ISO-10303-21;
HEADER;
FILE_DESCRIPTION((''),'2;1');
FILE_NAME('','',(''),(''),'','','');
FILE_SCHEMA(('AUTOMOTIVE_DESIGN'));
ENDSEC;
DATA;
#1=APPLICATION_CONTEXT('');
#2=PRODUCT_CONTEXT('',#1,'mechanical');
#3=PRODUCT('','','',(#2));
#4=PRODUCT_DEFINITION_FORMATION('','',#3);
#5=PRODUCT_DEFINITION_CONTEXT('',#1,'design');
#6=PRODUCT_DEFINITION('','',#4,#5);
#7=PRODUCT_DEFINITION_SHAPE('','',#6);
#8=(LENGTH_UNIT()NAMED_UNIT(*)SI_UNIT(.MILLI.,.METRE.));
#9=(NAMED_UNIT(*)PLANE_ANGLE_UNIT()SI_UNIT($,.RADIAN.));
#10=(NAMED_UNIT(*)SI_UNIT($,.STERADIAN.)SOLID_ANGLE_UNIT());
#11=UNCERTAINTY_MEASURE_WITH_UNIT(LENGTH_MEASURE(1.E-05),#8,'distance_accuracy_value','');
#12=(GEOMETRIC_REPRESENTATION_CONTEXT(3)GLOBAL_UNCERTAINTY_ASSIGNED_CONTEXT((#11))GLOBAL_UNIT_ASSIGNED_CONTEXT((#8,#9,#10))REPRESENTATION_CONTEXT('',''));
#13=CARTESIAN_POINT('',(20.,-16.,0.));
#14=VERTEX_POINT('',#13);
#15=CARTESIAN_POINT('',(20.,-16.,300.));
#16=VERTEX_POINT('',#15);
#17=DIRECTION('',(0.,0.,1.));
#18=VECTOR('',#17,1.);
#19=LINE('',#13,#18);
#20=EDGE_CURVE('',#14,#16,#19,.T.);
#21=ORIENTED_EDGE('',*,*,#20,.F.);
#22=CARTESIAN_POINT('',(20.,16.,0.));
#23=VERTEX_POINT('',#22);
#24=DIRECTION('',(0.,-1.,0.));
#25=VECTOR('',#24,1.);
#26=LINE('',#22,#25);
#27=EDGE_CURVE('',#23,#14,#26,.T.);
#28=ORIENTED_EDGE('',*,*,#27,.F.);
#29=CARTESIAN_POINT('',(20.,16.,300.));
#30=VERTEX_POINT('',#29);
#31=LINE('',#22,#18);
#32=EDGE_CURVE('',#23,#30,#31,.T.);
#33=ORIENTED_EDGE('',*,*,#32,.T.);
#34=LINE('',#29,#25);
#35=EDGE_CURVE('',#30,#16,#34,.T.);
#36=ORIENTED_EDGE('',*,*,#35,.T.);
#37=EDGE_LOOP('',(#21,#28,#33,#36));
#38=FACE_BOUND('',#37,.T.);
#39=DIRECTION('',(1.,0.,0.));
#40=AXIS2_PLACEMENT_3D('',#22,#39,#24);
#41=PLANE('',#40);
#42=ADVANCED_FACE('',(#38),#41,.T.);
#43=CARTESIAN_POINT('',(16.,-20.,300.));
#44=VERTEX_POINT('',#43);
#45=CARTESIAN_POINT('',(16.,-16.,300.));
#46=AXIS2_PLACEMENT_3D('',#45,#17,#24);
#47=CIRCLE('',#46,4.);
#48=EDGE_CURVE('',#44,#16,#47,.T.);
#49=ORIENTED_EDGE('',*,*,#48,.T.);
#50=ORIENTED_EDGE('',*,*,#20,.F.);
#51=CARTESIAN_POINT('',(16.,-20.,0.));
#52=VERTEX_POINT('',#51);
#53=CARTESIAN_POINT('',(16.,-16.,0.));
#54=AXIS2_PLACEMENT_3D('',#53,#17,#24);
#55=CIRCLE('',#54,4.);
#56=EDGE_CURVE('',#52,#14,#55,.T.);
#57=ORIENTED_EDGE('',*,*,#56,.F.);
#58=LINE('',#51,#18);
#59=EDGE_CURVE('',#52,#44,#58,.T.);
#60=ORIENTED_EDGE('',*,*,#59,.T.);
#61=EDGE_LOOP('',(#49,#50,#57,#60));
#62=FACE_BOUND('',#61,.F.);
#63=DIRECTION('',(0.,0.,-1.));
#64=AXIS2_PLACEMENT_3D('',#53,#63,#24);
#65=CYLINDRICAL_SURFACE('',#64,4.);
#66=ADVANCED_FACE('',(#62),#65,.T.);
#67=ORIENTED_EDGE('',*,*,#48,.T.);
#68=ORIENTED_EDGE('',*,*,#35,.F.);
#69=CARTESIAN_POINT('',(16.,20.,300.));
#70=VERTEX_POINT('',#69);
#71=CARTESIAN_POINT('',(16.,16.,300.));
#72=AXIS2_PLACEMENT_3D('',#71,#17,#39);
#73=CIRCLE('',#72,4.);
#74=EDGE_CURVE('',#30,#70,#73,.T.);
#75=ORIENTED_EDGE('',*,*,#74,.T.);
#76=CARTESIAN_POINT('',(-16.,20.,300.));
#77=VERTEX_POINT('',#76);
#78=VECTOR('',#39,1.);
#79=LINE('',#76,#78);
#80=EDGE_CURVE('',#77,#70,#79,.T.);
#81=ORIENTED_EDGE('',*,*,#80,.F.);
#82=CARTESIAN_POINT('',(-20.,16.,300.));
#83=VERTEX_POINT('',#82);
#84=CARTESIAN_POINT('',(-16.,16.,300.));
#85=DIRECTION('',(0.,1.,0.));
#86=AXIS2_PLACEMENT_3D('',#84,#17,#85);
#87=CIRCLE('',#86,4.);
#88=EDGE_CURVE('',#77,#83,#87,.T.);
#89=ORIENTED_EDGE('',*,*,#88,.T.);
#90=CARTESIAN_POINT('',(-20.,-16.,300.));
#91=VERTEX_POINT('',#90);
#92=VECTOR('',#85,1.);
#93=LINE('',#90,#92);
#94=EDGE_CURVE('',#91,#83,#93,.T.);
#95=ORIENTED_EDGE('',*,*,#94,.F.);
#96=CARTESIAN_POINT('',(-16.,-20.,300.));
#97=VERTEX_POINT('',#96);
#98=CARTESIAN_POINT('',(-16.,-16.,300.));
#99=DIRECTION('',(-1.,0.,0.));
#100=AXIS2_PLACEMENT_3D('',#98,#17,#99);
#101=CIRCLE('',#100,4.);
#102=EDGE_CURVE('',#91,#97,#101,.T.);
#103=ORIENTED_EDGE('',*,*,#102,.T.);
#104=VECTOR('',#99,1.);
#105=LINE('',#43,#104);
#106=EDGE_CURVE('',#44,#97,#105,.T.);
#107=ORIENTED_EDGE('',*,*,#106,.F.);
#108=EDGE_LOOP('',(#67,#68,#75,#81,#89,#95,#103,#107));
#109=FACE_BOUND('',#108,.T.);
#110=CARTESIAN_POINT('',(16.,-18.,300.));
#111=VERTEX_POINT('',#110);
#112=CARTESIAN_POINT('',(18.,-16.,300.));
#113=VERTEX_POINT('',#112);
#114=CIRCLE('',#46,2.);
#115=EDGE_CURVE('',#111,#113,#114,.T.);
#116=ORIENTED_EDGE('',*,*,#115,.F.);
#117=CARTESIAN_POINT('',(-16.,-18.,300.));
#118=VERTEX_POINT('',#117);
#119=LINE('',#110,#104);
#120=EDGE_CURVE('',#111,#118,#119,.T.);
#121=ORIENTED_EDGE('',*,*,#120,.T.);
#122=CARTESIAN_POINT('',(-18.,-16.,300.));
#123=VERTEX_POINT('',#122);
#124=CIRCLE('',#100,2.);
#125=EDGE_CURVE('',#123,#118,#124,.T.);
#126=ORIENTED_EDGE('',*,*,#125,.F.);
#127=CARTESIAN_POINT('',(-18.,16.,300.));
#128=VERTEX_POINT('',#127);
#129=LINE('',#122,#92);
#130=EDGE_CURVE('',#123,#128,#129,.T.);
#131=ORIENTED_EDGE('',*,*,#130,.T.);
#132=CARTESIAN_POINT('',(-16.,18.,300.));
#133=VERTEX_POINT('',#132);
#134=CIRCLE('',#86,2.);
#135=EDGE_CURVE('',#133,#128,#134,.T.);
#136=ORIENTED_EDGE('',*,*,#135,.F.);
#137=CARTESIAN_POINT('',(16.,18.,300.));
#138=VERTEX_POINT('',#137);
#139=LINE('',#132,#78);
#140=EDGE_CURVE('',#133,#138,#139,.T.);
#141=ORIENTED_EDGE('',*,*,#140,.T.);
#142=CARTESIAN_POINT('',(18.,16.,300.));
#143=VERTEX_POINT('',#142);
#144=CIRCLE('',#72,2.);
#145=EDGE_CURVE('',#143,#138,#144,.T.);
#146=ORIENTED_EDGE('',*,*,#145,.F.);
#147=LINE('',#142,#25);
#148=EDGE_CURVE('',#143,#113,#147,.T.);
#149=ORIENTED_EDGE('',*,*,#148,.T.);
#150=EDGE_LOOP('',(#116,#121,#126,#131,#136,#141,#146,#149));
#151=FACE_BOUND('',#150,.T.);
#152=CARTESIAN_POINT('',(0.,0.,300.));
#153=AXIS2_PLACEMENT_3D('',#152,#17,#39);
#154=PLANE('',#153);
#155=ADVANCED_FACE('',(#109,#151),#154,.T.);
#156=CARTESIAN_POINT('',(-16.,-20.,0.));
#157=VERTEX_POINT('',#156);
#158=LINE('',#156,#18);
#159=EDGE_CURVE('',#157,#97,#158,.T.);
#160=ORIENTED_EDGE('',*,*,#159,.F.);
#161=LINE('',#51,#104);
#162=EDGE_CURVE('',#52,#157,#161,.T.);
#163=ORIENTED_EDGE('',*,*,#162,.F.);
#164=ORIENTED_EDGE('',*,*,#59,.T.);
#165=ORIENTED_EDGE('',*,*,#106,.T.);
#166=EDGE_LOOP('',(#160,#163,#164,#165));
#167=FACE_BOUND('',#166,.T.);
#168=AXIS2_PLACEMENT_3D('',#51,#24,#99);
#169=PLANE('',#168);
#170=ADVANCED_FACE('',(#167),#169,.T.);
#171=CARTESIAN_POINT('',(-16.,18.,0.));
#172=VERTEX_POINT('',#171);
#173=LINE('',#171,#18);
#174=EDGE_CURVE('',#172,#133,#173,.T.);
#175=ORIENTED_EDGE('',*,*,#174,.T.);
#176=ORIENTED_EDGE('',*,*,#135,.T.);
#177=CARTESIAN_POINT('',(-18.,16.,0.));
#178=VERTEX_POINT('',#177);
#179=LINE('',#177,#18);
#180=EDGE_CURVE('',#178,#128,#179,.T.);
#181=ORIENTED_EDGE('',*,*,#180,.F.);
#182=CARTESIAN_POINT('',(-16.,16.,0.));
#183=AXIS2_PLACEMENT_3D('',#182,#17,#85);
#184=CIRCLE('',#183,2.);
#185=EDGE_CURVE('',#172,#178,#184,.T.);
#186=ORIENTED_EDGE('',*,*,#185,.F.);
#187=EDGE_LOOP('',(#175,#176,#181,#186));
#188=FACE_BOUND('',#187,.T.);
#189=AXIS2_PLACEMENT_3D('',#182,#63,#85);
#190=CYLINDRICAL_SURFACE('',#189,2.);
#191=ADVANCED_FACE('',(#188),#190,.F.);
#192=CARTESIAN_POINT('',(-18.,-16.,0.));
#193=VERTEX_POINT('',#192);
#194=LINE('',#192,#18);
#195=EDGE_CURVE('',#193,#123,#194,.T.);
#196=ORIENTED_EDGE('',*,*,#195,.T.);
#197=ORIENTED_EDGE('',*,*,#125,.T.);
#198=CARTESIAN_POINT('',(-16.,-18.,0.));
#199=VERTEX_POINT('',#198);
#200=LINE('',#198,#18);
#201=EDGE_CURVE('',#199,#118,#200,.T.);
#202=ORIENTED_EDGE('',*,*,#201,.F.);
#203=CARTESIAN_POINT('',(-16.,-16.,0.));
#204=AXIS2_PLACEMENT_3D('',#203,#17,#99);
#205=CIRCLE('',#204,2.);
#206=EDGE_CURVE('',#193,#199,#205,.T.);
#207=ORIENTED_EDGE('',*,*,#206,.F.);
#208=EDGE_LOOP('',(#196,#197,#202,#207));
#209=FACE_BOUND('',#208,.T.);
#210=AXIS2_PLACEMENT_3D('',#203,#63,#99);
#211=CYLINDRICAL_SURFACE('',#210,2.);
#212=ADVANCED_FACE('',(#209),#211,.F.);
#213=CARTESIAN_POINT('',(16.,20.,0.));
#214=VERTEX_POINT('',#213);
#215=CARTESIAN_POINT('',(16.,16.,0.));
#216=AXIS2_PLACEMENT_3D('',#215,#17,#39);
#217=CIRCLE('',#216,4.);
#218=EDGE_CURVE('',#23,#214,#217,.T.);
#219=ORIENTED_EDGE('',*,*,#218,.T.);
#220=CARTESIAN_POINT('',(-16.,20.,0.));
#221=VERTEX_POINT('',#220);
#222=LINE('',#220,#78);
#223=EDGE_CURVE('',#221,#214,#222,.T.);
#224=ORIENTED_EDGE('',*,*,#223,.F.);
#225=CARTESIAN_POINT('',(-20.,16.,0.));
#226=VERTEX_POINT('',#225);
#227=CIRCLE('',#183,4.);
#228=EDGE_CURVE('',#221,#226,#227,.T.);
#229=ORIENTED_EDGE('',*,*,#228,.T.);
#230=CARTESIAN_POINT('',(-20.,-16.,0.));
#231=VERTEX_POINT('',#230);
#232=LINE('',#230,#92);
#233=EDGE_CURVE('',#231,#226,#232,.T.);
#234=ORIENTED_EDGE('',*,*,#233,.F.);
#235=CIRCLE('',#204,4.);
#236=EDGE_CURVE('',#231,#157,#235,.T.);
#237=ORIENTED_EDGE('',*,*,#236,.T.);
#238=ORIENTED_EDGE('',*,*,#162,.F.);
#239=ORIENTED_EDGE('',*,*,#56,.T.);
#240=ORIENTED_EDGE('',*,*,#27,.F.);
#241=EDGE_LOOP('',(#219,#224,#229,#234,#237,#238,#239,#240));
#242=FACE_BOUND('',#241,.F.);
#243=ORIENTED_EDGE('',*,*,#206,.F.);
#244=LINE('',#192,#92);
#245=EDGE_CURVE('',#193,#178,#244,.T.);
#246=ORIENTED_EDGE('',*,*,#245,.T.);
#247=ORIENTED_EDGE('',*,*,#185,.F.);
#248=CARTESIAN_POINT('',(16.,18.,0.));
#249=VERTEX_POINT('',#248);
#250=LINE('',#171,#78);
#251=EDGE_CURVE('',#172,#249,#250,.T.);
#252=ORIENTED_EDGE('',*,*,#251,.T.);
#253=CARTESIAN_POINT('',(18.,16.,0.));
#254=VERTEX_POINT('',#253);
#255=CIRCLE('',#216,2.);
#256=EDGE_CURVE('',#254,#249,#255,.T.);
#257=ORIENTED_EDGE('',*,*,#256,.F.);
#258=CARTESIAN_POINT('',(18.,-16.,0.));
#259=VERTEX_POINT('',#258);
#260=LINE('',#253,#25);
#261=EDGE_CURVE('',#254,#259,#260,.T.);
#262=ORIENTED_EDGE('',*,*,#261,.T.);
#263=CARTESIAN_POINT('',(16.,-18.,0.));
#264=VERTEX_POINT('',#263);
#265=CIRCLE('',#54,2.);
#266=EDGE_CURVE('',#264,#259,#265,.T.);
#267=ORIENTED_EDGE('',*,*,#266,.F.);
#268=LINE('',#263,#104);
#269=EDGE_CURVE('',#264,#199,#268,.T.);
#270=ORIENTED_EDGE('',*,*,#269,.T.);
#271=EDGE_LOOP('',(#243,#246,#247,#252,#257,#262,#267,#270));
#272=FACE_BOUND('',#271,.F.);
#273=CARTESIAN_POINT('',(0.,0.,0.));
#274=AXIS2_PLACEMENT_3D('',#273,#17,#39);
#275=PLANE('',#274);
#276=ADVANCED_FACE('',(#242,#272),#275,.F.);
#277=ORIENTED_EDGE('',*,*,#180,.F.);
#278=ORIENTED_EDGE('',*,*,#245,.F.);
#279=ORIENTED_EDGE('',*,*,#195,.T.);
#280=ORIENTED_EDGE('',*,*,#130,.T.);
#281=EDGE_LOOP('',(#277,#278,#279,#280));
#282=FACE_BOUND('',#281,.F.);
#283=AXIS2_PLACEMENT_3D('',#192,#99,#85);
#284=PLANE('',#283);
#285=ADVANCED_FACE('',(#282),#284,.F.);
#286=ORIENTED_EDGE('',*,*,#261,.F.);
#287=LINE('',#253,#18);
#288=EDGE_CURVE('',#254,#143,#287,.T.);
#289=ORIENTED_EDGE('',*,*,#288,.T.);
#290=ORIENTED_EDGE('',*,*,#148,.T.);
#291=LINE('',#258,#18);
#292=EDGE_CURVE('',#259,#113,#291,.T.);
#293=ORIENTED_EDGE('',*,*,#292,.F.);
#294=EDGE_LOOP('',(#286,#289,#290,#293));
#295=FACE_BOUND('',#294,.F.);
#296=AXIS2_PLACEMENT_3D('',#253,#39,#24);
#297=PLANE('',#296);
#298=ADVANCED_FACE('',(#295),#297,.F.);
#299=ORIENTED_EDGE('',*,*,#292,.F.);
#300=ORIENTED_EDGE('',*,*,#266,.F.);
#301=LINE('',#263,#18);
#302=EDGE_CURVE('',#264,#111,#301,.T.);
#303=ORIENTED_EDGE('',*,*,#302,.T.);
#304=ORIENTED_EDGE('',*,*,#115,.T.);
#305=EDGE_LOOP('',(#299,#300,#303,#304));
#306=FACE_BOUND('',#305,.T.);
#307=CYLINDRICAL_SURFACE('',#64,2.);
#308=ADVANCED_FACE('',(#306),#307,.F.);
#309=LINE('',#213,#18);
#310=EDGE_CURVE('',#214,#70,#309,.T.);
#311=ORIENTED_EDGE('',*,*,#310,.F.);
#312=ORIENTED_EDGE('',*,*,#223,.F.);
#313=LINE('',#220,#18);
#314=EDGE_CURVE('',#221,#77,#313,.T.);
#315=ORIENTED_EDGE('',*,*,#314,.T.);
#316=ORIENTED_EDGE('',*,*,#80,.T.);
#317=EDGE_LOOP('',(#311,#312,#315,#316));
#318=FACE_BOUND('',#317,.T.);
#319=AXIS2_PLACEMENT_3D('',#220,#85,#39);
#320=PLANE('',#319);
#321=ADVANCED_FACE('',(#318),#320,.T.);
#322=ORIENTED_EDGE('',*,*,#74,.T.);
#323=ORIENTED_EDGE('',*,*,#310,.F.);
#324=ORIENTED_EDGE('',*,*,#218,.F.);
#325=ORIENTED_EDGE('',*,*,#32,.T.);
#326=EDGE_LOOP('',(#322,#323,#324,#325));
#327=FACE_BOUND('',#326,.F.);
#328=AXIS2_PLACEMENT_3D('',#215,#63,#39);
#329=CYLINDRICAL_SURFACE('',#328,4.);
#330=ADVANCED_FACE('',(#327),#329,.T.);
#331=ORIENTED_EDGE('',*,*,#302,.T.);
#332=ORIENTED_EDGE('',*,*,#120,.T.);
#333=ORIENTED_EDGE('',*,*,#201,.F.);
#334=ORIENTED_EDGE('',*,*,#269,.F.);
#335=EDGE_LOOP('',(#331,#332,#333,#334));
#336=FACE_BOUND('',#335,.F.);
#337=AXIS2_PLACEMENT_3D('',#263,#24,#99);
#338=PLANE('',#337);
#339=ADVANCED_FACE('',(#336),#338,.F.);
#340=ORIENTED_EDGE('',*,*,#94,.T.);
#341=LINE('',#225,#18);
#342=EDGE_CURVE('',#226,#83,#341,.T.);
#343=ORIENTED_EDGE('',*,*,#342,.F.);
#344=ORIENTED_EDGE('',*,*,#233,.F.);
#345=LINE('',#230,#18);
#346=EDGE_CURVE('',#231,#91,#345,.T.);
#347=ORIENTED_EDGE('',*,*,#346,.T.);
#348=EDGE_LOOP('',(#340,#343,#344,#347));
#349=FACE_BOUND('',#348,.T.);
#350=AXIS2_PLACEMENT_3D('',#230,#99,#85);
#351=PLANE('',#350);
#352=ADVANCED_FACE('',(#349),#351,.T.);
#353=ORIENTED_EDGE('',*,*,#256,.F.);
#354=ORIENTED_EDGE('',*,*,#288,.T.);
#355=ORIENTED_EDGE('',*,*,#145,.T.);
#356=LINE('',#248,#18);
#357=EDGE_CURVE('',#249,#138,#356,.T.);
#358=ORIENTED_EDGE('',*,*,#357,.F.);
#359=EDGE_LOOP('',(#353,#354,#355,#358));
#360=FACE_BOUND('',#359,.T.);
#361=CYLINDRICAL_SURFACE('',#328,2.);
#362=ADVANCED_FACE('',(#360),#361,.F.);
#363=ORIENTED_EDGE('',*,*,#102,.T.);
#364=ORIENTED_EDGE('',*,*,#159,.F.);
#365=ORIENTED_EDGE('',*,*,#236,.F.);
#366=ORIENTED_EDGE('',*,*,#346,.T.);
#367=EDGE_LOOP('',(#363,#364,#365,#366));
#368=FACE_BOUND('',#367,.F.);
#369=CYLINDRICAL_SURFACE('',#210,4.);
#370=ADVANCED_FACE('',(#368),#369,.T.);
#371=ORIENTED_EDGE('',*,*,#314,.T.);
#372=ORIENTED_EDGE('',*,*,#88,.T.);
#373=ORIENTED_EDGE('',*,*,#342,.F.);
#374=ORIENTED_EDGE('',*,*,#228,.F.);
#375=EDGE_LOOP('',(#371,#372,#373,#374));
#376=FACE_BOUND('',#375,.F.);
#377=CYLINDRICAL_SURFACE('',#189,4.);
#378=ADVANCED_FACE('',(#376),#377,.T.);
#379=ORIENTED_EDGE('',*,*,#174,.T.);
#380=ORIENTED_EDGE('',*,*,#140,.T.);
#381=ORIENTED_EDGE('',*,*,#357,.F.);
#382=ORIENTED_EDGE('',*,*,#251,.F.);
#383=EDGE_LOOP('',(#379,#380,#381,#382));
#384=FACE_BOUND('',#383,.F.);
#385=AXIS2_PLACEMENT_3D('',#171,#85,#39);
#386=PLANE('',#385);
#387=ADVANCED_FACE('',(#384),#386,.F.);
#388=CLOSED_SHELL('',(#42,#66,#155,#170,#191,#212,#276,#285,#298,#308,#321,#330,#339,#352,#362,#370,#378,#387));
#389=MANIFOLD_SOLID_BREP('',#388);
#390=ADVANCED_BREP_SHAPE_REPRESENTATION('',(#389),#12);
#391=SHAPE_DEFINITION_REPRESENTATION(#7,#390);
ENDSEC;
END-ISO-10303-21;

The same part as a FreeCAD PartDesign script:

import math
import FreeCAD as App
import Part
import Sketcher
Q = App.Units.Quantity

doc = App.newDocument("Part")
body = doc.addObject("PartDesign::Body", "Body")

# Sketch on XY plane
sketch1 = body.newObject("Sketcher::SketchObject", "Sketch")
sketch1.AttachmentSupport = (doc.getObject("XY_Plane"), [""])
sketch1.MapMode = "FlatFace"
sketch1.addGeometry(Part.LineSegment(App.Vector(-20, 16, 0), App.Vector(-20, -16, 0)), False)
sketch1.addGeometry(Part.ArcOfCircle(Part.Circle(App.Vector(-16, -16, 0), App.Vector(0, 0, 1), 4), math.radians(180), math.radians(270)), False)
sketch1.addGeometry(Part.LineSegment(App.Vector(-16, -20, 0), App.Vector(16, -20, 0)), False)
sketch1.addGeometry(Part.ArcOfCircle(Part.Circle(App.Vector(16, -16, 0), App.Vector(0, 0, 1), 4), math.radians(-90), math.radians(0)), False)
sketch1.addGeometry(Part.LineSegment(App.Vector(20, -16, 0), App.Vector(20, 16, 0)), False)
sketch1.addGeometry(Part.ArcOfCircle(Part.Circle(App.Vector(16, 16, 0), App.Vector(0, 0, 1), 4), math.radians(0), math.radians(90)), False)
sketch1.addGeometry(Part.LineSegment(App.Vector(16, 20, 0), App.Vector(-16, 20, 0)), False)
sketch1.addGeometry(Part.ArcOfCircle(Part.Circle(App.Vector(-16, 16, 0), App.Vector(0, 0, 1), 4), math.radians(90), math.radians(180)), False)
sketch1.addGeometry(Part.ArcOfCircle(Part.Circle(App.Vector(-16, 16, 0), App.Vector(0, 0, 1), 2), math.radians(90), math.radians(180)), False)
sketch1.addGeometry(Part.LineSegment(App.Vector(-16, 18, 0), App.Vector(16, 18, 0)), False)
sketch1.addGeometry(Part.ArcOfCircle(Part.Circle(App.Vector(16, 16, 0), App.Vector(0, 0, 1), 2), math.radians(0), math.radians(90)), False)
sketch1.addGeometry(Part.LineSegment(App.Vector(18, 16, 0), App.Vector(18, -16, 0)), False)
sketch1.addGeometry(Part.ArcOfCircle(Part.Circle(App.Vector(16, -16, 0), App.Vector(0, 0, 1), 2), math.radians(-90), math.radians(0)), False)
sketch1.addGeometry(Part.LineSegment(App.Vector(16, -18, 0), App.Vector(-16, -18, 0)), False)
sketch1.addGeometry(Part.ArcOfCircle(Part.Circle(App.Vector(-16, -16, 0), App.Vector(0, 0, 1), 2), math.radians(180), math.radians(270)), False)
sketch1.addGeometry(Part.LineSegment(App.Vector(-18, -16, 0), App.Vector(-18, 16, 0)), False)
sketch1.addConstraint(Sketcher.Constraint("Tangent", 0, 2, 1, 1))
sketch1.addConstraint(Sketcher.Constraint("Tangent", 1, 2, 2, 1))
sketch1.addConstraint(Sketcher.Constraint("Tangent", 2, 2, 3, 1))
sketch1.addConstraint(Sketcher.Constraint("Tangent", 3, 2, 4, 1))
sketch1.addConstraint(Sketcher.Constraint("Tangent", 4, 2, 5, 1))
sketch1.addConstraint(Sketcher.Constraint("Tangent", 5, 2, 6, 1))
sketch1.addConstraint(Sketcher.Constraint("Tangent", 6, 2, 7, 1))
sketch1.addConstraint(Sketcher.Constraint("Tangent", 7, 2, 0, 1))
sketch1.addConstraint(Sketcher.Constraint("Tangent", 8, 1, 9, 1))
sketch1.addConstraint(Sketcher.Constraint("Tangent", 9, 2, 10, 2))
sketch1.addConstraint(Sketcher.Constraint("Tangent", 10, 1, 11, 1))
sketch1.addConstraint(Sketcher.Constraint("Tangent", 11, 2, 12, 2))
sketch1.addConstraint(Sketcher.Constraint("Tangent", 12, 1, 13, 1))
sketch1.addConstraint(Sketcher.Constraint("Tangent", 13, 2, 14, 2))
sketch1.addConstraint(Sketcher.Constraint("Tangent", 14, 1, 15, 1))
sketch1.addConstraint(Sketcher.Constraint("Tangent", 15, 2, 8, 2))
sketch1.addConstraint(Sketcher.Constraint("Vertical", 0))
sketch1.addConstraint(Sketcher.Constraint("Horizontal", 2))
sketch1.addConstraint(Sketcher.Constraint("Vertical", 4))
sketch1.addConstraint(Sketcher.Constraint("Horizontal", 6))
sketch1.addConstraint(Sketcher.Constraint("Horizontal", 9))
sketch1.addConstraint(Sketcher.Constraint("Vertical", 11))
sketch1.addConstraint(Sketcher.Constraint("Horizontal", 13))
sketch1.addConstraint(Sketcher.Constraint("Vertical", 15))
sketch1.addConstraint(Sketcher.Constraint("Coincident", 8, 3, 7, 3))
sketch1.addConstraint(Sketcher.Constraint("Coincident", 10, 3, 5, 3))
sketch1.addConstraint(Sketcher.Constraint("Coincident", 12, 3, 3, 3))
sketch1.addConstraint(Sketcher.Constraint("Equal", 1, 3))
sketch1.addConstraint(Sketcher.Constraint("Equal", 3, 5))
sketch1.addConstraint(Sketcher.Constraint("Equal", 5, 7))
sketch1.addConstraint(Sketcher.Constraint("Equal", 12, 14))
sketch1.addConstraint(Sketcher.Constraint("Symmetric", 1, 3, 5, 3, -1, 1))
sketch1.addConstraint(Sketcher.Constraint("Equal", 13, 0))
sketch1.addConstraint(Sketcher.Constraint("Radius", 1, Q("4 mm")))
sketch1.addConstraint(Sketcher.Constraint("Radius", 8, Q("2 mm")))
sketch1.addConstraint(Sketcher.Constraint("DistanceX", 0, 2, -1, 1, Q("20 mm")))
pad1 = body.newObject("PartDesign::Pad", "Pad")
pad1.Profile = sketch1
pad1.Length = 300

doc.recompute()
